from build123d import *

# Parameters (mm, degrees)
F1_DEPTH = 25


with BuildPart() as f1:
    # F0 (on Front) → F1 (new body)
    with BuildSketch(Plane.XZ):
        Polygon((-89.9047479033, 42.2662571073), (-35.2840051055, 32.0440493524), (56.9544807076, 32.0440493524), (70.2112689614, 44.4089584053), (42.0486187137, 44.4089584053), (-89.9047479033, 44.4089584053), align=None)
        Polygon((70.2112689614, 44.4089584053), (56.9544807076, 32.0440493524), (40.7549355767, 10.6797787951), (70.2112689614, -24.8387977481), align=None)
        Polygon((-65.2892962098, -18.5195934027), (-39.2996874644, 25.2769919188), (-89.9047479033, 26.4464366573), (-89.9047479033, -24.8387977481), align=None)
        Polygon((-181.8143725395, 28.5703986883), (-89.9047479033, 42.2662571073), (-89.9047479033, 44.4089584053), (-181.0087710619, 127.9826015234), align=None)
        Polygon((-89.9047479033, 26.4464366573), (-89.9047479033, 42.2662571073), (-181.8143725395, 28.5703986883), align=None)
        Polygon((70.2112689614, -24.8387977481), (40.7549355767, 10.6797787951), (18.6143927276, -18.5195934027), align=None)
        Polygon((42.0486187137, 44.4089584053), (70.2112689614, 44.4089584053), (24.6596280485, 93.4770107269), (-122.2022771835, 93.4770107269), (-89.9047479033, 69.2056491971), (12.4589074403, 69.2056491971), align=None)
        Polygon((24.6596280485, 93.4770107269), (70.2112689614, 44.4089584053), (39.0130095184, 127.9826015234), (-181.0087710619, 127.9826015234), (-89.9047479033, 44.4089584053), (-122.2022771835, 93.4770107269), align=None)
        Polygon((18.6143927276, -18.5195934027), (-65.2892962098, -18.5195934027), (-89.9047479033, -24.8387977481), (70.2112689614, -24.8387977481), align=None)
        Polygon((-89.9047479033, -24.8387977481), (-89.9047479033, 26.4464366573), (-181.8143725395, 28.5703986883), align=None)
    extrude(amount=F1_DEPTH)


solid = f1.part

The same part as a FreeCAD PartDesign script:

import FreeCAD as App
import Part
import Sketcher

V = App.Vector
Q = App.Units.Quantity

doc = App.newDocument("Part")
params = doc.addObject("Spreadsheet::Sheet", "Params")
for row, (alias, value) in enumerate([
    ("pad1_length", "25 mm"),
], start=1):
    params.set(f"A{row}", alias)
    params.set(f"B{row}", "=" + value)
    params.setAlias(f"B{row}", alias)

body = doc.addObject("PartDesign::Body", "Body")

# Sketch on XZ plane
sketch1 = body.newObject("Sketcher::SketchObject", "Sketch")
sketch1.AttachmentSupport = (doc.getObject("XZ_Plane"), [""])
sketch1.MapMode = "FlatFace"
sketch1.addGeometry([
    Part.LineSegment(V(-181.008771, 127.982602, 0), V(-181.814373, 28.570399, 0)),  # 0
    Part.LineSegment(V(-181.814373, 28.570399, 0), V(-89.904748, -24.838798, 0)),  # 1
    Part.LineSegment(V(-89.904748, -24.838798, 0), V(70.211269, -24.838798, 0)),  # 2
    Part.LineSegment(V(70.211269, -24.838798, 0), V(70.211269, 44.408958, 0)),  # 3
    Part.LineSegment(V(70.211269, 44.408958, 0), V(39.01301, 127.982602, 0)),  # 4
    Part.LineSegment(V(39.01301, 127.982602, 0), V(-181.008771, 127.982602, 0)),  # 5
    Part.LineSegment(V(-39.299687, 25.276992, 0), V(-89.904748, 26.446437, 0)),  # 6
    Part.LineSegment(V(-89.904748, 26.446437, 0), V(-89.904748, 42.266257, 0)),  # 7
    Part.LineSegment(V(-89.904748, 42.266257, 0), V(-35.284005, 32.044049, 0)),  # 8
    Part.LineSegment(V(-35.284005, 32.044049, 0), V(56.954481, 32.044049, 0)),  # 9
    Part.LineSegment(V(56.954481, 32.044049, 0), V(40.754936, 10.679779, 0)),  # 10
    Part.LineSegment(V(40.754936, 10.679779, 0), V(18.614393, -18.519593, 0)),  # 11
    Part.LineSegment(V(18.614393, -18.519593, 0), V(-65.289296, -18.519593, 0)),  # 12
    Part.LineSegment(V(-65.289296, -18.519593, 0), V(-39.299687, 25.276992, 0)),  # 13
    Part.LineSegment(V(-122.202277, 93.477011, 0), V(-89.904748, 69.205649, 0)),  # 14
    Part.LineSegment(V(-89.904748, 69.205649, 0), V(12.458907, 69.205649, 0)),  # 15
    Part.LineSegment(V(12.458907, 69.205649, 0), V(42.048619, 44.408958, 0)),  # 16
    Part.LineSegment(V(42.048619, 44.408958, 0), V(-89.904748, 44.408958, 0)),  # 17
    Part.LineSegment(V(-89.904748, 44.408958, 0), V(-122.202277, 93.477011, 0)),  # 18
], False)
sketch1.addConstraint([
    Sketcher.Constraint("Coincident", 0, 2, 1, 1),
    Sketcher.Constraint("Coincident", 1, 2, 2, 1),
    Sketcher.Constraint("Coincident", 2, 2, 3, 1),
    Sketcher.Constraint("Coincident", 3, 2, 4, 1),
    Sketcher.Constraint("Coincident", 4, 2, 5, 1),
    Sketcher.Constraint("Coincident", 5, 2, 0, 1),
    Sketcher.Constraint("Coincident", 6, 2, 7, 1),
    Sketcher.Constraint("Coincident", 7, 2, 8, 1),
    Sketcher.Constraint("Coincident", 8, 2, 9, 1),
    Sketcher.Constraint("Coincident", 9, 2, 10, 1),
    Sketcher.Constraint("Coincident", 10, 2, 11, 1),
    Sketcher.Constraint("Coincident", 11, 2, 12, 1),
    Sketcher.Constraint("Coincident", 12, 2, 13, 1),
    Sketcher.Constraint("Coincident", 13, 2, 6, 1),
    Sketcher.Constraint("Coincident", 14, 2, 15, 1),
    Sketcher.Constraint("Coincident", 15, 2, 16, 1),
    Sketcher.Constraint("Coincident", 16, 2, 17, 1),
    Sketcher.Constraint("Coincident", 17, 2, 18, 1),
    Sketcher.Constraint("Coincident", 18, 2, 14, 1),
    Sketcher.Constraint("Horizontal", 2),
    Sketcher.Constraint("Vertical", 3),
    Sketcher.Constraint("Horizontal", 5),
    Sketcher.Constraint("Vertical", 7),
    Sketcher.Constraint("Horizontal", 9),
    Sketcher.Constraint("Horizontal", 12),
    Sketcher.Constraint("Horizontal", 15),
    Sketcher.Constraint("Horizontal", 17),
    Sketcher.Constraint("Parallel", 10, 11),
    Sketcher.Constraint("Horizontal", 3, 2, 16, 2),
    Sketcher.Constraint("Vertical", 1, 2, 6, 2),
    Sketcher.Constraint("Vertical", 7, 2, 14, 2),
    Sketcher.Constraint("Vertical", 14, 2, 17, 2),
    Sketcher.Constraint("DistanceX", 5, 2, 5, 1, Q("220.021781 mm")),
    Sketcher.Constraint("DistanceX", 12, 2, 12, 1, Q("83.903689 mm")),
    Sketcher.Constraint("DistanceY", 7, 1, 7, 2, Q("15.81982 mm")),
    Sketcher.Constraint("DistanceY", -1, 1, 0, 2, Q("28.570399 mm")),
    Sketcher.Constraint("DistanceY", -1, 1, 4, 2, Q("127.982602 mm")),
    Sketcher.Constraint("DistanceY", 2, 2, 4, 2, Q("152.821399 mm")),
    Sketcher.Constraint("DistanceX", 0, 2, 5, 2, Q("0.805601 mm")),
    Sketcher.Constraint("DistanceY", 8, 2, 14, 2, Q("37.1616 mm")),
    Sketcher.Constraint("DistanceY", 7, 2, 17, 2, Q("2.142701 mm")),
    Sketcher.Constraint("Distance", 1, Q("106.301088 mm")),
    Sketcher.Constraint("Distance", 4, Q("89.20698 mm")),
    Sketcher.Constraint("Distance", 6, Q("50.618571 mm")),
    Sketcher.Constraint("Distance", 11, Q("36.644331 mm")),
    Sketcher.Constraint("Distance", 14, Q("40.400859 mm")),
    Sketcher.Constraint("DistanceX", 2, 1, 2, 2, Q("160.116017 mm")),
    Sketcher.Constraint("DistanceX", 9, 1, 9, 2, Q("92.238486 mm")),
    Sketcher.Constraint("DistanceX", 15, 1, 15, 2, Q("102.363655 mm")),
    Sketcher.Constraint("DistanceX", 17, 2, 17, 1, Q("131.953367 mm")),
    Sketcher.Constraint("DistanceX", -1, 1, 2, 2, Q("70.211269 mm")),
    Sketcher.Constraint("DistanceY", -1, 1, 8, 2, Q("32.044049 mm")),
    Sketcher.Constraint("DistanceX", -1, 1, 9, 2, Q("56.954481 mm")),
    Sketcher.Constraint("DistanceY", -1, 1, 10, 2, Q("10.679779 mm")),
    Sketcher.Constraint("DistanceY", -1, 1, 13, 2, Q("25.276992 mm")),
    Sketcher.Constraint("DistanceY", -1, 1, 18, 2, Q("93.477011 mm")),
    Sketcher.Constraint("DistanceX", 8, 2, 10, 2, Q("76.038941 mm")),
])
pad1 = body.newObject("PartDesign::Pad", "Pad")
pad1.Profile = sketch1
pad1.setExpression("Length", "Params.pad1_length")

doc.recompute()
